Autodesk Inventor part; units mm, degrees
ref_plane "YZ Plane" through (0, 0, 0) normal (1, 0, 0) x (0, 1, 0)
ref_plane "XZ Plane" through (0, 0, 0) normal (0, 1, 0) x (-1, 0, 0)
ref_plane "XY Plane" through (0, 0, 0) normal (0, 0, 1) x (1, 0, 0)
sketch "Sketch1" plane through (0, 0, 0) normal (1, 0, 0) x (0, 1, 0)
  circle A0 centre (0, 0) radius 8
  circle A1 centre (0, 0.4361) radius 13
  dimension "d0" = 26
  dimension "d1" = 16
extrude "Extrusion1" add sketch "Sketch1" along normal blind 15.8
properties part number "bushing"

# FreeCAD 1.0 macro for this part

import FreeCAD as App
import Part
import Sketcher

V = App.Vector
Q = App.Units.Quantity

doc = App.newDocument("Part")
body = doc.addObject("PartDesign::Body", "Body")

sketch1 = doc.addObject("Sketcher::SketchObject", "Sketch")
body.addObject(sketch1)
sketch1.AttachmentSupport = (doc.YZ_Plane, [""])
sketch1.MapMode = "FlatFace"
sketch1.addGeometry([
    Part.Circle(V(0, 0, 0), V(0, 0, 1), 13),
    Part.Circle(V(0, 0, 0), V(0, 0, 1), 8),
], False)
sketch1.addConstraint([
    Sketcher.Constraint("Coincident", 1, 3, -1, 1),
    Sketcher.Constraint("PointOnObject", 0, 3, -2),
    Sketcher.Constraint("Diameter", 0, Q("26 mm")),
    Sketcher.Constraint("Diameter", 1, Q("16 mm")),
    Sketcher.Constraint("DistanceY", -1, 1, 0, 3, Q("0.436 mm")),
])
pad1 = doc.addObject("PartDesign::Pad", "Pad")
body.addObject(pad1)
pad1.Profile = sketch1
pad1.Length = 15.8

doc.recompute()
